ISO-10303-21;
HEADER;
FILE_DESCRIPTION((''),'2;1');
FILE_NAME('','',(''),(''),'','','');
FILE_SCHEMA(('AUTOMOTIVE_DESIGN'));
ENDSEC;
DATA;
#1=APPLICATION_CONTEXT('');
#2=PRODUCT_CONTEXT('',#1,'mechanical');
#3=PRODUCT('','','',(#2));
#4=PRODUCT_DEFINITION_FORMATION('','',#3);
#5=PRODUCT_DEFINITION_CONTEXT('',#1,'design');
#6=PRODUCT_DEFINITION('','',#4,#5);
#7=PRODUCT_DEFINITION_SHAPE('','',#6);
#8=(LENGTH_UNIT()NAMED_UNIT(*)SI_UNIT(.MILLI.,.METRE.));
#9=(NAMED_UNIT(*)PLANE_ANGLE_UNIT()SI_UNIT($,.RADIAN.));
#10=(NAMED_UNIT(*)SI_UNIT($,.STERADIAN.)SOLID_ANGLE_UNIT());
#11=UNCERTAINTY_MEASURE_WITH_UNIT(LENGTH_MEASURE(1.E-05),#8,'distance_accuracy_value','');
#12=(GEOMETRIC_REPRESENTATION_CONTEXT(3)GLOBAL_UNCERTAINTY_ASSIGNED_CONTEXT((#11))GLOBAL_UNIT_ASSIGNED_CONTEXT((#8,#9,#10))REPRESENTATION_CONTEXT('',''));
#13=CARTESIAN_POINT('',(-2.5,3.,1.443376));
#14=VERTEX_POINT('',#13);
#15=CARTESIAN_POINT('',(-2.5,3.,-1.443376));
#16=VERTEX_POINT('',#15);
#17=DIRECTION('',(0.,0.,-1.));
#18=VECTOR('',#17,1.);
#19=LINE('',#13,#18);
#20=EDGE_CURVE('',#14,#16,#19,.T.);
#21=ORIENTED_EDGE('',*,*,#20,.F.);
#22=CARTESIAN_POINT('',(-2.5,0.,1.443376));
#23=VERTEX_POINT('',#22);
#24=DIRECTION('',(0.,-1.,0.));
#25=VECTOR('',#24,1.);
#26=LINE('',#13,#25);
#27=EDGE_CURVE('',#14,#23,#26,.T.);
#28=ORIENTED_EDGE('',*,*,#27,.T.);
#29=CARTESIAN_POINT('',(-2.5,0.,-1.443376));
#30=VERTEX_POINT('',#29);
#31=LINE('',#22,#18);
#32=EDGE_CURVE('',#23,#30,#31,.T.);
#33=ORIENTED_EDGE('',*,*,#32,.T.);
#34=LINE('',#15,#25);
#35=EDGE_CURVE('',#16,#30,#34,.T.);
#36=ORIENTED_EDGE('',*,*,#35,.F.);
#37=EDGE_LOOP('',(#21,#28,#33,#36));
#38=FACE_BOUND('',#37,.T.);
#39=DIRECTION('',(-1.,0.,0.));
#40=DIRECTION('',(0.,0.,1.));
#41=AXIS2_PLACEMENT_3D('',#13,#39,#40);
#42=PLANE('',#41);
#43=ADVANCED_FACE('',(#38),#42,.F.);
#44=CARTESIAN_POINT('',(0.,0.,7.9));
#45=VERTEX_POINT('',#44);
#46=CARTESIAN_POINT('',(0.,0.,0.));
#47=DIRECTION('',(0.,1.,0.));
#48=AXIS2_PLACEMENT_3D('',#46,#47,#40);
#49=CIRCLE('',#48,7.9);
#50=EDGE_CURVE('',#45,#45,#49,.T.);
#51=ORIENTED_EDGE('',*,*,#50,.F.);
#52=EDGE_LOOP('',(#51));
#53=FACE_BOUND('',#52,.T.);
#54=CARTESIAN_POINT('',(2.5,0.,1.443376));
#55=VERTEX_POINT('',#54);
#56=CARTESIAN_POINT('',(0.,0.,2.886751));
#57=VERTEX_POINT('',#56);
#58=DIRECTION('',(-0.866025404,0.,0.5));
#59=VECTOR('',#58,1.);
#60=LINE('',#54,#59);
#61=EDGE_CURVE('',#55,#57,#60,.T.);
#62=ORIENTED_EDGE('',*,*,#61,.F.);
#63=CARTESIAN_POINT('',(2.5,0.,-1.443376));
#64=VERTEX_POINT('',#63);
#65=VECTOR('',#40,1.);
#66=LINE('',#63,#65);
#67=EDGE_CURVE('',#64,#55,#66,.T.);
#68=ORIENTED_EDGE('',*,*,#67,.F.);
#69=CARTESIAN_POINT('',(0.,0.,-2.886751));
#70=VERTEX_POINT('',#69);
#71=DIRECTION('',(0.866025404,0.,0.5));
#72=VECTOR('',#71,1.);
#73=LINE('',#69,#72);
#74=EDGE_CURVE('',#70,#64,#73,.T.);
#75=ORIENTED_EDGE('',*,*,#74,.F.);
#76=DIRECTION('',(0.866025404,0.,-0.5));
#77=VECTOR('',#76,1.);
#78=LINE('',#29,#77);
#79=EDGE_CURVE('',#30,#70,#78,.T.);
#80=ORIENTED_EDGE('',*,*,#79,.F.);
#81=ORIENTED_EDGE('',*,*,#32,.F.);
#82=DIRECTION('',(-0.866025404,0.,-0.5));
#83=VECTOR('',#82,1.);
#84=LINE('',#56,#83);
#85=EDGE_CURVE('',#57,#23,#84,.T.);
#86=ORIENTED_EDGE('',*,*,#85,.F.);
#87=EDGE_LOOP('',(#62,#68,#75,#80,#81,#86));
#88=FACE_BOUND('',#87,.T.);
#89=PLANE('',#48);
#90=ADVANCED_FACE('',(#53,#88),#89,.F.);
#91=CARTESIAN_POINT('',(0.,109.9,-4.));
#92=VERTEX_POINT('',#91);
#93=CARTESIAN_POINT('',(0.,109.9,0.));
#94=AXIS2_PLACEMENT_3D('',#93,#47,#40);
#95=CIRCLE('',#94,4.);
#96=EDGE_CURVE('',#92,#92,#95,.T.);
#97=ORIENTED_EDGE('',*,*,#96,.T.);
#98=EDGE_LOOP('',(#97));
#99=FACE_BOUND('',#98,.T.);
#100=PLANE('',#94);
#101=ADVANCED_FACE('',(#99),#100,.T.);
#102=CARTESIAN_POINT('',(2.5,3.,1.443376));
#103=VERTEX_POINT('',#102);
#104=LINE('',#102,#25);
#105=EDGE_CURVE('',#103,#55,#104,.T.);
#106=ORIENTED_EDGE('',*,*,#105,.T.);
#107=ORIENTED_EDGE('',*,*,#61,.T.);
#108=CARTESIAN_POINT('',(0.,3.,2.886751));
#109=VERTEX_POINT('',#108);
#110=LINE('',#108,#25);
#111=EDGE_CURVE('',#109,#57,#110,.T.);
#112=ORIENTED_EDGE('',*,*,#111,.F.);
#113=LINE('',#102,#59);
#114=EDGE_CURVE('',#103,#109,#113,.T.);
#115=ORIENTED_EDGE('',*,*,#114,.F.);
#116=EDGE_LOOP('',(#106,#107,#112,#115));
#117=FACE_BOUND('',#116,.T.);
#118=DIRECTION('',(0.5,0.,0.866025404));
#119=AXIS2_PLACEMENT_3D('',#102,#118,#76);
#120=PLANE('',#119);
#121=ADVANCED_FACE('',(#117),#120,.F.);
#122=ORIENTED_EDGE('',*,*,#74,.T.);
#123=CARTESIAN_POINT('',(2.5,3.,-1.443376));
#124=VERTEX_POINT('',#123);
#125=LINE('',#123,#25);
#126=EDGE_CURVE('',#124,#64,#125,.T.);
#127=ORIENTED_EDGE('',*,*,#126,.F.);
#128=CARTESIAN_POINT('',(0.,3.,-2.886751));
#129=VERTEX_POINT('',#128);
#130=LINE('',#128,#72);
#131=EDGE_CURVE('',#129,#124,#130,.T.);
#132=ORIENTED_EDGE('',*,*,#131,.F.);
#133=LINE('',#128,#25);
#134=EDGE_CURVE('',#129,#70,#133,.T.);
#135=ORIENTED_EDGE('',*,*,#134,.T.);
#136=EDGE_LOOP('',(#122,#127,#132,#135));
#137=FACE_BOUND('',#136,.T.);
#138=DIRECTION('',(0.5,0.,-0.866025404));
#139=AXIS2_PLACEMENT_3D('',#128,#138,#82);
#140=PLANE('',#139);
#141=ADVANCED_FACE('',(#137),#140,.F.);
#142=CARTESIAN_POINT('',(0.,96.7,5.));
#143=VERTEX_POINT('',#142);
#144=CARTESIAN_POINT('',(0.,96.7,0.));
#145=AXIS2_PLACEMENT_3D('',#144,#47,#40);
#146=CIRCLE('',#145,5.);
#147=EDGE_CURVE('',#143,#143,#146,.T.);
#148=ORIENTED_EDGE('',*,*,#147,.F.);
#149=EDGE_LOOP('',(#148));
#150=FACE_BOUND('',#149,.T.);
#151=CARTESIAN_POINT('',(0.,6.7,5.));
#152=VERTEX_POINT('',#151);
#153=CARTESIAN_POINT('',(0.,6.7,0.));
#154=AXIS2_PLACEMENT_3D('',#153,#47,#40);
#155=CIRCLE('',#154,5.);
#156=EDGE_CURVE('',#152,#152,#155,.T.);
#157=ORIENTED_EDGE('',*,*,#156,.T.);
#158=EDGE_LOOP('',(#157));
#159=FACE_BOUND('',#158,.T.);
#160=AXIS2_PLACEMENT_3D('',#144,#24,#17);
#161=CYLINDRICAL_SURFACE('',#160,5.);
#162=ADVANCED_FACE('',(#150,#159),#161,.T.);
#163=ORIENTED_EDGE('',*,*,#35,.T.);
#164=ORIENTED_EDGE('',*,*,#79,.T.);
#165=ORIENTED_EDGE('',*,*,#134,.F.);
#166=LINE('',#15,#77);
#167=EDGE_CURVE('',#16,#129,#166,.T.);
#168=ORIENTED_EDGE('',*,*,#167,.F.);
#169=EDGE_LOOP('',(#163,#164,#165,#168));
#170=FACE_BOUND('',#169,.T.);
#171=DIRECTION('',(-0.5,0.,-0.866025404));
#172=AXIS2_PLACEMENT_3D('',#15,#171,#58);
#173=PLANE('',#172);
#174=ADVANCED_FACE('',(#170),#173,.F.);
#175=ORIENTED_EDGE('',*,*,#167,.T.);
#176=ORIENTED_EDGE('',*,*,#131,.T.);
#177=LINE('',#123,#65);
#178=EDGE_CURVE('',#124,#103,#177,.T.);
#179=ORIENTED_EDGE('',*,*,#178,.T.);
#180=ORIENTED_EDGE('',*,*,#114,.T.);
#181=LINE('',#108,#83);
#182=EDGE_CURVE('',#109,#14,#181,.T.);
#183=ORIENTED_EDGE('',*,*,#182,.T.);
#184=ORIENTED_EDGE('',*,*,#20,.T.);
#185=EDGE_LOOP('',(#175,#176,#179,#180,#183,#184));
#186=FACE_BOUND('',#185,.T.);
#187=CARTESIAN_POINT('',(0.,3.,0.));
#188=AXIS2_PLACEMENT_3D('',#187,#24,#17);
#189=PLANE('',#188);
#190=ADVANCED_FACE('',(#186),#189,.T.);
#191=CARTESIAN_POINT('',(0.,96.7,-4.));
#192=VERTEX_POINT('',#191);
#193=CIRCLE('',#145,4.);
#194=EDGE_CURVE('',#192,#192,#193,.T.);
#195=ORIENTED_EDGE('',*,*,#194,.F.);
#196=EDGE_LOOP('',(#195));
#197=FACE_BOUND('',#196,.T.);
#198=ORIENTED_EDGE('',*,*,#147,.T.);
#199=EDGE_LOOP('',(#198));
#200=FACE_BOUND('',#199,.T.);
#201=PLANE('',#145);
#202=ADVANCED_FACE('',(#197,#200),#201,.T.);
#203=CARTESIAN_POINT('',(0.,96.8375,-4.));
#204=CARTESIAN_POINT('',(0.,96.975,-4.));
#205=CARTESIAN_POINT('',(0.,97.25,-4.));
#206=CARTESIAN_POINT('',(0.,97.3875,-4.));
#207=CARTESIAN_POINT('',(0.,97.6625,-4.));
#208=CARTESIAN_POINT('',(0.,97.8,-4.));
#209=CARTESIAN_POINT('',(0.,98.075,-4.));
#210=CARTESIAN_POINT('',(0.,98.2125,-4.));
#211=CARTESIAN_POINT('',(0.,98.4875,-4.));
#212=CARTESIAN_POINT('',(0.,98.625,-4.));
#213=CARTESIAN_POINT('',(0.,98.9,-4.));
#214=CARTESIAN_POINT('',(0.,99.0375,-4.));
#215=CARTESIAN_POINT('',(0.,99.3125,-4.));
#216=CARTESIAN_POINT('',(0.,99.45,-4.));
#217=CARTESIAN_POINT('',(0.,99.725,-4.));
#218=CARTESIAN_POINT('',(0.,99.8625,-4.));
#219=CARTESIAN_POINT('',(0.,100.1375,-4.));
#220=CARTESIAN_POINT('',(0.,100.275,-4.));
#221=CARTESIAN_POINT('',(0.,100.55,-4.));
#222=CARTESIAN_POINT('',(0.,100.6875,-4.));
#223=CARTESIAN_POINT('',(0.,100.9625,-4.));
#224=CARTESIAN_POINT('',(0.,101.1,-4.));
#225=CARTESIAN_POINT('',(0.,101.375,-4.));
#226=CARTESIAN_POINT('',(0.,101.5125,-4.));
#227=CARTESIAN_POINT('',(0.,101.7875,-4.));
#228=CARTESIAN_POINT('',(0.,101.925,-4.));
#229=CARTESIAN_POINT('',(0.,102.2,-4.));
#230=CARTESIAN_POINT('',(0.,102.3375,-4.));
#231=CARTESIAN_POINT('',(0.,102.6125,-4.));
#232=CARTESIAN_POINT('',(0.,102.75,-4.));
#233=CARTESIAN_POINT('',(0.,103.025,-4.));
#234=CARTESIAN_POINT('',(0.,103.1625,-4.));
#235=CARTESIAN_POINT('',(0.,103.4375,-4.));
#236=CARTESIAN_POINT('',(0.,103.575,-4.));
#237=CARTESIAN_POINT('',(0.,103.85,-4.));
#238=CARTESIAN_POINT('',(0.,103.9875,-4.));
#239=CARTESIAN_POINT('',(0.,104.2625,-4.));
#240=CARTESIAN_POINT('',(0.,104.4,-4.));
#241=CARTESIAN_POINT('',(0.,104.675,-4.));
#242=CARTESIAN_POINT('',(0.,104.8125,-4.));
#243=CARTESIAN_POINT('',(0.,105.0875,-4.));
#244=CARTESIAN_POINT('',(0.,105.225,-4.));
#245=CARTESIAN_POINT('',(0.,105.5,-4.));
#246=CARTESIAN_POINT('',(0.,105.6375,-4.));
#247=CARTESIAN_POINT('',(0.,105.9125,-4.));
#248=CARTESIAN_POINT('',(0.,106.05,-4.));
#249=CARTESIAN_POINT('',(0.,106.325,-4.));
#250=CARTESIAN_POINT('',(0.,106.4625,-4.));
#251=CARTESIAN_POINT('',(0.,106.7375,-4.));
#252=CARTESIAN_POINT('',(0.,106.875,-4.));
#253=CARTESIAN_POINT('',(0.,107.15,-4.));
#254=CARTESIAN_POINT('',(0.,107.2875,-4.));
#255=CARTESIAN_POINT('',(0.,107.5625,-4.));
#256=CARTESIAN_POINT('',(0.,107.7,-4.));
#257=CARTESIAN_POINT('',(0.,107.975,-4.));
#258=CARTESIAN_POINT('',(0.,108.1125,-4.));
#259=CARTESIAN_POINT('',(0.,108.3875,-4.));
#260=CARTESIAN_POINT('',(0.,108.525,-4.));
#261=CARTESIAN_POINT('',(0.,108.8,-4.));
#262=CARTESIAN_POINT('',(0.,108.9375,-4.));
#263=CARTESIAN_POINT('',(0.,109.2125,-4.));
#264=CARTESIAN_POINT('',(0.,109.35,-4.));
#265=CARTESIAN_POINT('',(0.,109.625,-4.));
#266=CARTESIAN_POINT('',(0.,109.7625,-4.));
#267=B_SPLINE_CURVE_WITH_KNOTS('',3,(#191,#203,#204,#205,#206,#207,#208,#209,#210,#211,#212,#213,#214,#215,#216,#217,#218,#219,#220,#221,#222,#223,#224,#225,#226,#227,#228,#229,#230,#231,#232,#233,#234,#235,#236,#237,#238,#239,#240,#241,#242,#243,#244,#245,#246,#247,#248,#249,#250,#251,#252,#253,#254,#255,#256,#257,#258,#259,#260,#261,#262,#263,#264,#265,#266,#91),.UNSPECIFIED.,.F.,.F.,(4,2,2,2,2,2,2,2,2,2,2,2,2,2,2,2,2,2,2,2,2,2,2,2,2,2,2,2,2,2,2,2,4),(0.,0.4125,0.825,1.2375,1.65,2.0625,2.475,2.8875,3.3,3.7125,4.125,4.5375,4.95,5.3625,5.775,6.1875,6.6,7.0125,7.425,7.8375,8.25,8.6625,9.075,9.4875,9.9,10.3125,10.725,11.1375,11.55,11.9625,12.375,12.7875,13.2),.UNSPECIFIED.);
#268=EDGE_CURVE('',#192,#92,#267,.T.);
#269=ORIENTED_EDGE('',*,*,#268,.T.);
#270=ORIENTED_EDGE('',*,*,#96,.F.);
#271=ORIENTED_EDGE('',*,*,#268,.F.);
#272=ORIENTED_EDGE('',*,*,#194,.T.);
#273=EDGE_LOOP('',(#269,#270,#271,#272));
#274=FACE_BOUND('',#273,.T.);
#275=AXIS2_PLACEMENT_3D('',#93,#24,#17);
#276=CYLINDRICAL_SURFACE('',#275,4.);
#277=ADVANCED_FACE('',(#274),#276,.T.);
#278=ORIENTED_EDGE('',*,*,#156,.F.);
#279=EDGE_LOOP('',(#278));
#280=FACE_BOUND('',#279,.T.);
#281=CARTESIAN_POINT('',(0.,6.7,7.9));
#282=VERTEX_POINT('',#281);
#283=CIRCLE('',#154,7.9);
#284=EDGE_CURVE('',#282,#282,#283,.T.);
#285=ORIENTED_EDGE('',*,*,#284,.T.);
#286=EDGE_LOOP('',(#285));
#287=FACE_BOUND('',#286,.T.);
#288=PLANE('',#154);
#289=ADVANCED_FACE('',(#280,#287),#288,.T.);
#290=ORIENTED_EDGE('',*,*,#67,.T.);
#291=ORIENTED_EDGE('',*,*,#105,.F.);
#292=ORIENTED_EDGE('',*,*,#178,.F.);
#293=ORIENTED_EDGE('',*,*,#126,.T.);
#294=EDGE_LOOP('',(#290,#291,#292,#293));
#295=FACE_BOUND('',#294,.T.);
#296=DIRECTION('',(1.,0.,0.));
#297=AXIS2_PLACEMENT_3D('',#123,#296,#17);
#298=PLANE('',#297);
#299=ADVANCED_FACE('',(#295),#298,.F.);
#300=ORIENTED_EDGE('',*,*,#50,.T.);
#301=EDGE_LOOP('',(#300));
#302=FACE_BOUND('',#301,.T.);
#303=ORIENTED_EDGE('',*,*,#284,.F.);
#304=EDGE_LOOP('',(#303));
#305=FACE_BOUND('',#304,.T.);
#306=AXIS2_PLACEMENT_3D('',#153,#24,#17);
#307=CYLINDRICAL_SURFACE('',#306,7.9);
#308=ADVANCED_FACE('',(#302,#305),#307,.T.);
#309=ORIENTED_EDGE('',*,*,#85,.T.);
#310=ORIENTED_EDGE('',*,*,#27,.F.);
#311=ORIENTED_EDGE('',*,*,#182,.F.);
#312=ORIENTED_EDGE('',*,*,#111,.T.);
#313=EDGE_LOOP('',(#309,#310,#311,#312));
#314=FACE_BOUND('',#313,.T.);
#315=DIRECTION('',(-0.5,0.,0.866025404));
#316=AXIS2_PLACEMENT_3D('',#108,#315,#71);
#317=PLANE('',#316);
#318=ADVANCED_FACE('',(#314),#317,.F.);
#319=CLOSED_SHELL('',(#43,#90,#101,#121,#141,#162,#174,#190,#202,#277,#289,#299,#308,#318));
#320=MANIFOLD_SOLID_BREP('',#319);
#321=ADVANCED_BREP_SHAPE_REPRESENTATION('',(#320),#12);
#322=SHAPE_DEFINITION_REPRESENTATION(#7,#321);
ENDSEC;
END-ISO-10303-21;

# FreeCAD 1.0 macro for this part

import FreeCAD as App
import Part
import Sketcher

V = App.Vector
Q = App.Units.Quantity

doc = App.newDocument("Part")
params = doc.addObject("Spreadsheet::Sheet", "Params")
for row, (alias, value) in enumerate([
    ("sketch1_diameter", "8 mm"),
    ("pad1_length", "109.9 mm"),
    ("sketch2_diameter", "10 mm"),
    ("sketch2_diameter2", "8 mm"),
    ("pad2_length", "96.7 mm"),
    ("sketch3_diameter", "10 mm"),
    ("sketch3_diameter2", "15.8 mm"),
    ("pad3_length", "6.7 mm"),
    ("pocket1_length", "3 mm"),
], start=1):
    params.set(f"A{row}", alias)
    params.set(f"B{row}", "=" + value)
    params.setAlias(f"B{row}", alias)

body = doc.addObject("PartDesign::Body", "Body")

# Sketch on XZ plane
sketch1 = body.newObject("Sketcher::SketchObject", "Sketch")
sketch1.AttachmentSupport = (doc.getObject("XZ_Plane"), [""])
sketch1.MapMode = "FlatFace"
sketch1.addGeometry(Part.Circle(V(0, 0, 0), V(0, 0, 1), 4), False)
sketch1.addConstraint([
    Sketcher.Constraint("Coincident", 0, 3, -1, 1),
    Sketcher.Constraint("Diameter", 0, 8.0),
])
sketch1.setExpression("Constraints[1]", "Params.sketch1_diameter")
pad1 = body.newObject("PartDesign::Pad", "Pad")
pad1.Profile = sketch1
pad1.setExpression("Length", "Params.pad1_length")
pad1.Reversed = True

# Sketch on XZ plane
sketch2 = body.newObject("Sketcher::SketchObject", "Sketch001")
sketch2.AttachmentSupport = (doc.getObject("XZ_Plane"), [""])
sketch2.MapMode = "FlatFace"
sketch2.addGeometry([
    Part.Circle(V(0, 0, 0), V(0, 0, 1), 5),
    Part.Circle(V(0, 0, 0), V(0, 0, 1), 4),
], False)
sketch2.addConstraint([
    Sketcher.Constraint("Coincident", 0, 3, -1, 1),
    Sketcher.Constraint("Coincident", 1, 3, -1, 1),
    Sketcher.Constraint("Diameter", 0, 10.0),
    Sketcher.Constraint("Diameter", 1, 8.0),
])
sketch2.setExpression("Constraints[2]", "Params.sketch2_diameter")
sketch2.setExpression("Constraints[3]", "Params.sketch2_diameter2")
pad2 = body.newObject("PartDesign::Pad", "Pad001")
pad2.Profile = sketch2
pad2.setExpression("Length", "Params.pad2_length")
pad2.Reversed = True

# Sketch on XZ plane
sketch3 = body.newObject("Sketcher::SketchObject", "Sketch002")
sketch3.AttachmentSupport = (doc.getObject("XZ_Plane"), [""])
sketch3.MapMode = "FlatFace"
sketch3.addGeometry([
    Part.Circle(V(0, 0, 0), V(0, 0, 1), 8),
    Part.Circle(V(0, 0, 0), V(0, 0, 1), 5),
], False)
sketch3.addConstraint([
    Sketcher.Constraint("Coincident", 0, 3, -1, 1),
    Sketcher.Constraint("Coincident", 1, 3, -1, 1),
    Sketcher.Constraint("Diameter", 1, 10.0),
    Sketcher.Constraint("Diameter", 0, 15.8),
])
sketch3.setExpression("Constraints[2]", "Params.sketch3_diameter")
sketch3.setExpression("Constraints[3]", "Params.sketch3_diameter2")
pad3 = body.newObject("PartDesign::Pad", "Pad002")
pad3.Profile = sketch3
pad3.setExpression("Length", "Params.pad3_length")
pad3.Reversed = True

# Sketch on XZ plane
sketch4 = body.newObject("Sketcher::SketchObject", "Sketch003")
sketch4.AttachmentSupport = (doc.getObject("XZ_Plane"), [""])
sketch4.MapMode = "FlatFace"
sketch4.addGeometry([
    Part.LineSegment(V(2.5, 1.4, 0), V(0, 2.9, 0)),  # 0
    Part.LineSegment(V(0, 2.9, 0), V(-2.5, 1.4, 0)),  # 1
    Part.LineSegment(V(-2.5, 1.4, 0), V(-2.5, -1.4, 0)),  # 2
    Part.LineSegment(V(-2.5, -1.4, 0), V(0, -2.9, 0)),  # 3
    Part.LineSegment(V(0, -2.9, 0), V(2.5, -1.4, 0)),  # 4
    Part.LineSegment(V(2.5, -1.4, 0), V(2.5, 1.4, 0)),  # 5
], False)
sketch4.addConstraint([
    Sketcher.Constraint("Coincident", 0, 2, 1, 1),
    Sketcher.Constraint("Coincident", 1, 2, 2, 1),
    Sketcher.Constraint("Coincident", 2, 2, 3, 1),
    Sketcher.Constraint("Coincident", 3, 2, 4, 1),
    Sketcher.Constraint("Coincident", 4, 2, 5, 1),
    Sketcher.Constraint("Coincident", 5, 2, 0, 1),
    Sketcher.Constraint("Vertical", 2),
    Sketcher.Constraint("Vertical", 5),
    Sketcher.Constraint("Symmetric", 0, 2, 3, 2, -1, 1),
    Sketcher.Constraint("Symmetric", 1, 2, 4, 2, -1, 1),
    Sketcher.Constraint("PointOnObject", 0, 2, -2),
    Sketcher.Constraint("Parallel", 0, 3),
    Sketcher.Constraint("Horizontal", 2, 2, 4, 2),
    Sketcher.Constraint("Angle", 0, Q("150 deg")),
    Sketcher.Constraint("DistanceX", 2, 2, 4, 2, 5.0),
    Sketcher.Constraint("DistanceY", 2, 2, 2, 1, 2.886751),
])
pocket1 = body.newObject("PartDesign::Pocket", "Pocket")
pocket1.Profile = sketch4
pocket1.setExpression("Length", "Params.pocket1_length")

doc.recompute()
